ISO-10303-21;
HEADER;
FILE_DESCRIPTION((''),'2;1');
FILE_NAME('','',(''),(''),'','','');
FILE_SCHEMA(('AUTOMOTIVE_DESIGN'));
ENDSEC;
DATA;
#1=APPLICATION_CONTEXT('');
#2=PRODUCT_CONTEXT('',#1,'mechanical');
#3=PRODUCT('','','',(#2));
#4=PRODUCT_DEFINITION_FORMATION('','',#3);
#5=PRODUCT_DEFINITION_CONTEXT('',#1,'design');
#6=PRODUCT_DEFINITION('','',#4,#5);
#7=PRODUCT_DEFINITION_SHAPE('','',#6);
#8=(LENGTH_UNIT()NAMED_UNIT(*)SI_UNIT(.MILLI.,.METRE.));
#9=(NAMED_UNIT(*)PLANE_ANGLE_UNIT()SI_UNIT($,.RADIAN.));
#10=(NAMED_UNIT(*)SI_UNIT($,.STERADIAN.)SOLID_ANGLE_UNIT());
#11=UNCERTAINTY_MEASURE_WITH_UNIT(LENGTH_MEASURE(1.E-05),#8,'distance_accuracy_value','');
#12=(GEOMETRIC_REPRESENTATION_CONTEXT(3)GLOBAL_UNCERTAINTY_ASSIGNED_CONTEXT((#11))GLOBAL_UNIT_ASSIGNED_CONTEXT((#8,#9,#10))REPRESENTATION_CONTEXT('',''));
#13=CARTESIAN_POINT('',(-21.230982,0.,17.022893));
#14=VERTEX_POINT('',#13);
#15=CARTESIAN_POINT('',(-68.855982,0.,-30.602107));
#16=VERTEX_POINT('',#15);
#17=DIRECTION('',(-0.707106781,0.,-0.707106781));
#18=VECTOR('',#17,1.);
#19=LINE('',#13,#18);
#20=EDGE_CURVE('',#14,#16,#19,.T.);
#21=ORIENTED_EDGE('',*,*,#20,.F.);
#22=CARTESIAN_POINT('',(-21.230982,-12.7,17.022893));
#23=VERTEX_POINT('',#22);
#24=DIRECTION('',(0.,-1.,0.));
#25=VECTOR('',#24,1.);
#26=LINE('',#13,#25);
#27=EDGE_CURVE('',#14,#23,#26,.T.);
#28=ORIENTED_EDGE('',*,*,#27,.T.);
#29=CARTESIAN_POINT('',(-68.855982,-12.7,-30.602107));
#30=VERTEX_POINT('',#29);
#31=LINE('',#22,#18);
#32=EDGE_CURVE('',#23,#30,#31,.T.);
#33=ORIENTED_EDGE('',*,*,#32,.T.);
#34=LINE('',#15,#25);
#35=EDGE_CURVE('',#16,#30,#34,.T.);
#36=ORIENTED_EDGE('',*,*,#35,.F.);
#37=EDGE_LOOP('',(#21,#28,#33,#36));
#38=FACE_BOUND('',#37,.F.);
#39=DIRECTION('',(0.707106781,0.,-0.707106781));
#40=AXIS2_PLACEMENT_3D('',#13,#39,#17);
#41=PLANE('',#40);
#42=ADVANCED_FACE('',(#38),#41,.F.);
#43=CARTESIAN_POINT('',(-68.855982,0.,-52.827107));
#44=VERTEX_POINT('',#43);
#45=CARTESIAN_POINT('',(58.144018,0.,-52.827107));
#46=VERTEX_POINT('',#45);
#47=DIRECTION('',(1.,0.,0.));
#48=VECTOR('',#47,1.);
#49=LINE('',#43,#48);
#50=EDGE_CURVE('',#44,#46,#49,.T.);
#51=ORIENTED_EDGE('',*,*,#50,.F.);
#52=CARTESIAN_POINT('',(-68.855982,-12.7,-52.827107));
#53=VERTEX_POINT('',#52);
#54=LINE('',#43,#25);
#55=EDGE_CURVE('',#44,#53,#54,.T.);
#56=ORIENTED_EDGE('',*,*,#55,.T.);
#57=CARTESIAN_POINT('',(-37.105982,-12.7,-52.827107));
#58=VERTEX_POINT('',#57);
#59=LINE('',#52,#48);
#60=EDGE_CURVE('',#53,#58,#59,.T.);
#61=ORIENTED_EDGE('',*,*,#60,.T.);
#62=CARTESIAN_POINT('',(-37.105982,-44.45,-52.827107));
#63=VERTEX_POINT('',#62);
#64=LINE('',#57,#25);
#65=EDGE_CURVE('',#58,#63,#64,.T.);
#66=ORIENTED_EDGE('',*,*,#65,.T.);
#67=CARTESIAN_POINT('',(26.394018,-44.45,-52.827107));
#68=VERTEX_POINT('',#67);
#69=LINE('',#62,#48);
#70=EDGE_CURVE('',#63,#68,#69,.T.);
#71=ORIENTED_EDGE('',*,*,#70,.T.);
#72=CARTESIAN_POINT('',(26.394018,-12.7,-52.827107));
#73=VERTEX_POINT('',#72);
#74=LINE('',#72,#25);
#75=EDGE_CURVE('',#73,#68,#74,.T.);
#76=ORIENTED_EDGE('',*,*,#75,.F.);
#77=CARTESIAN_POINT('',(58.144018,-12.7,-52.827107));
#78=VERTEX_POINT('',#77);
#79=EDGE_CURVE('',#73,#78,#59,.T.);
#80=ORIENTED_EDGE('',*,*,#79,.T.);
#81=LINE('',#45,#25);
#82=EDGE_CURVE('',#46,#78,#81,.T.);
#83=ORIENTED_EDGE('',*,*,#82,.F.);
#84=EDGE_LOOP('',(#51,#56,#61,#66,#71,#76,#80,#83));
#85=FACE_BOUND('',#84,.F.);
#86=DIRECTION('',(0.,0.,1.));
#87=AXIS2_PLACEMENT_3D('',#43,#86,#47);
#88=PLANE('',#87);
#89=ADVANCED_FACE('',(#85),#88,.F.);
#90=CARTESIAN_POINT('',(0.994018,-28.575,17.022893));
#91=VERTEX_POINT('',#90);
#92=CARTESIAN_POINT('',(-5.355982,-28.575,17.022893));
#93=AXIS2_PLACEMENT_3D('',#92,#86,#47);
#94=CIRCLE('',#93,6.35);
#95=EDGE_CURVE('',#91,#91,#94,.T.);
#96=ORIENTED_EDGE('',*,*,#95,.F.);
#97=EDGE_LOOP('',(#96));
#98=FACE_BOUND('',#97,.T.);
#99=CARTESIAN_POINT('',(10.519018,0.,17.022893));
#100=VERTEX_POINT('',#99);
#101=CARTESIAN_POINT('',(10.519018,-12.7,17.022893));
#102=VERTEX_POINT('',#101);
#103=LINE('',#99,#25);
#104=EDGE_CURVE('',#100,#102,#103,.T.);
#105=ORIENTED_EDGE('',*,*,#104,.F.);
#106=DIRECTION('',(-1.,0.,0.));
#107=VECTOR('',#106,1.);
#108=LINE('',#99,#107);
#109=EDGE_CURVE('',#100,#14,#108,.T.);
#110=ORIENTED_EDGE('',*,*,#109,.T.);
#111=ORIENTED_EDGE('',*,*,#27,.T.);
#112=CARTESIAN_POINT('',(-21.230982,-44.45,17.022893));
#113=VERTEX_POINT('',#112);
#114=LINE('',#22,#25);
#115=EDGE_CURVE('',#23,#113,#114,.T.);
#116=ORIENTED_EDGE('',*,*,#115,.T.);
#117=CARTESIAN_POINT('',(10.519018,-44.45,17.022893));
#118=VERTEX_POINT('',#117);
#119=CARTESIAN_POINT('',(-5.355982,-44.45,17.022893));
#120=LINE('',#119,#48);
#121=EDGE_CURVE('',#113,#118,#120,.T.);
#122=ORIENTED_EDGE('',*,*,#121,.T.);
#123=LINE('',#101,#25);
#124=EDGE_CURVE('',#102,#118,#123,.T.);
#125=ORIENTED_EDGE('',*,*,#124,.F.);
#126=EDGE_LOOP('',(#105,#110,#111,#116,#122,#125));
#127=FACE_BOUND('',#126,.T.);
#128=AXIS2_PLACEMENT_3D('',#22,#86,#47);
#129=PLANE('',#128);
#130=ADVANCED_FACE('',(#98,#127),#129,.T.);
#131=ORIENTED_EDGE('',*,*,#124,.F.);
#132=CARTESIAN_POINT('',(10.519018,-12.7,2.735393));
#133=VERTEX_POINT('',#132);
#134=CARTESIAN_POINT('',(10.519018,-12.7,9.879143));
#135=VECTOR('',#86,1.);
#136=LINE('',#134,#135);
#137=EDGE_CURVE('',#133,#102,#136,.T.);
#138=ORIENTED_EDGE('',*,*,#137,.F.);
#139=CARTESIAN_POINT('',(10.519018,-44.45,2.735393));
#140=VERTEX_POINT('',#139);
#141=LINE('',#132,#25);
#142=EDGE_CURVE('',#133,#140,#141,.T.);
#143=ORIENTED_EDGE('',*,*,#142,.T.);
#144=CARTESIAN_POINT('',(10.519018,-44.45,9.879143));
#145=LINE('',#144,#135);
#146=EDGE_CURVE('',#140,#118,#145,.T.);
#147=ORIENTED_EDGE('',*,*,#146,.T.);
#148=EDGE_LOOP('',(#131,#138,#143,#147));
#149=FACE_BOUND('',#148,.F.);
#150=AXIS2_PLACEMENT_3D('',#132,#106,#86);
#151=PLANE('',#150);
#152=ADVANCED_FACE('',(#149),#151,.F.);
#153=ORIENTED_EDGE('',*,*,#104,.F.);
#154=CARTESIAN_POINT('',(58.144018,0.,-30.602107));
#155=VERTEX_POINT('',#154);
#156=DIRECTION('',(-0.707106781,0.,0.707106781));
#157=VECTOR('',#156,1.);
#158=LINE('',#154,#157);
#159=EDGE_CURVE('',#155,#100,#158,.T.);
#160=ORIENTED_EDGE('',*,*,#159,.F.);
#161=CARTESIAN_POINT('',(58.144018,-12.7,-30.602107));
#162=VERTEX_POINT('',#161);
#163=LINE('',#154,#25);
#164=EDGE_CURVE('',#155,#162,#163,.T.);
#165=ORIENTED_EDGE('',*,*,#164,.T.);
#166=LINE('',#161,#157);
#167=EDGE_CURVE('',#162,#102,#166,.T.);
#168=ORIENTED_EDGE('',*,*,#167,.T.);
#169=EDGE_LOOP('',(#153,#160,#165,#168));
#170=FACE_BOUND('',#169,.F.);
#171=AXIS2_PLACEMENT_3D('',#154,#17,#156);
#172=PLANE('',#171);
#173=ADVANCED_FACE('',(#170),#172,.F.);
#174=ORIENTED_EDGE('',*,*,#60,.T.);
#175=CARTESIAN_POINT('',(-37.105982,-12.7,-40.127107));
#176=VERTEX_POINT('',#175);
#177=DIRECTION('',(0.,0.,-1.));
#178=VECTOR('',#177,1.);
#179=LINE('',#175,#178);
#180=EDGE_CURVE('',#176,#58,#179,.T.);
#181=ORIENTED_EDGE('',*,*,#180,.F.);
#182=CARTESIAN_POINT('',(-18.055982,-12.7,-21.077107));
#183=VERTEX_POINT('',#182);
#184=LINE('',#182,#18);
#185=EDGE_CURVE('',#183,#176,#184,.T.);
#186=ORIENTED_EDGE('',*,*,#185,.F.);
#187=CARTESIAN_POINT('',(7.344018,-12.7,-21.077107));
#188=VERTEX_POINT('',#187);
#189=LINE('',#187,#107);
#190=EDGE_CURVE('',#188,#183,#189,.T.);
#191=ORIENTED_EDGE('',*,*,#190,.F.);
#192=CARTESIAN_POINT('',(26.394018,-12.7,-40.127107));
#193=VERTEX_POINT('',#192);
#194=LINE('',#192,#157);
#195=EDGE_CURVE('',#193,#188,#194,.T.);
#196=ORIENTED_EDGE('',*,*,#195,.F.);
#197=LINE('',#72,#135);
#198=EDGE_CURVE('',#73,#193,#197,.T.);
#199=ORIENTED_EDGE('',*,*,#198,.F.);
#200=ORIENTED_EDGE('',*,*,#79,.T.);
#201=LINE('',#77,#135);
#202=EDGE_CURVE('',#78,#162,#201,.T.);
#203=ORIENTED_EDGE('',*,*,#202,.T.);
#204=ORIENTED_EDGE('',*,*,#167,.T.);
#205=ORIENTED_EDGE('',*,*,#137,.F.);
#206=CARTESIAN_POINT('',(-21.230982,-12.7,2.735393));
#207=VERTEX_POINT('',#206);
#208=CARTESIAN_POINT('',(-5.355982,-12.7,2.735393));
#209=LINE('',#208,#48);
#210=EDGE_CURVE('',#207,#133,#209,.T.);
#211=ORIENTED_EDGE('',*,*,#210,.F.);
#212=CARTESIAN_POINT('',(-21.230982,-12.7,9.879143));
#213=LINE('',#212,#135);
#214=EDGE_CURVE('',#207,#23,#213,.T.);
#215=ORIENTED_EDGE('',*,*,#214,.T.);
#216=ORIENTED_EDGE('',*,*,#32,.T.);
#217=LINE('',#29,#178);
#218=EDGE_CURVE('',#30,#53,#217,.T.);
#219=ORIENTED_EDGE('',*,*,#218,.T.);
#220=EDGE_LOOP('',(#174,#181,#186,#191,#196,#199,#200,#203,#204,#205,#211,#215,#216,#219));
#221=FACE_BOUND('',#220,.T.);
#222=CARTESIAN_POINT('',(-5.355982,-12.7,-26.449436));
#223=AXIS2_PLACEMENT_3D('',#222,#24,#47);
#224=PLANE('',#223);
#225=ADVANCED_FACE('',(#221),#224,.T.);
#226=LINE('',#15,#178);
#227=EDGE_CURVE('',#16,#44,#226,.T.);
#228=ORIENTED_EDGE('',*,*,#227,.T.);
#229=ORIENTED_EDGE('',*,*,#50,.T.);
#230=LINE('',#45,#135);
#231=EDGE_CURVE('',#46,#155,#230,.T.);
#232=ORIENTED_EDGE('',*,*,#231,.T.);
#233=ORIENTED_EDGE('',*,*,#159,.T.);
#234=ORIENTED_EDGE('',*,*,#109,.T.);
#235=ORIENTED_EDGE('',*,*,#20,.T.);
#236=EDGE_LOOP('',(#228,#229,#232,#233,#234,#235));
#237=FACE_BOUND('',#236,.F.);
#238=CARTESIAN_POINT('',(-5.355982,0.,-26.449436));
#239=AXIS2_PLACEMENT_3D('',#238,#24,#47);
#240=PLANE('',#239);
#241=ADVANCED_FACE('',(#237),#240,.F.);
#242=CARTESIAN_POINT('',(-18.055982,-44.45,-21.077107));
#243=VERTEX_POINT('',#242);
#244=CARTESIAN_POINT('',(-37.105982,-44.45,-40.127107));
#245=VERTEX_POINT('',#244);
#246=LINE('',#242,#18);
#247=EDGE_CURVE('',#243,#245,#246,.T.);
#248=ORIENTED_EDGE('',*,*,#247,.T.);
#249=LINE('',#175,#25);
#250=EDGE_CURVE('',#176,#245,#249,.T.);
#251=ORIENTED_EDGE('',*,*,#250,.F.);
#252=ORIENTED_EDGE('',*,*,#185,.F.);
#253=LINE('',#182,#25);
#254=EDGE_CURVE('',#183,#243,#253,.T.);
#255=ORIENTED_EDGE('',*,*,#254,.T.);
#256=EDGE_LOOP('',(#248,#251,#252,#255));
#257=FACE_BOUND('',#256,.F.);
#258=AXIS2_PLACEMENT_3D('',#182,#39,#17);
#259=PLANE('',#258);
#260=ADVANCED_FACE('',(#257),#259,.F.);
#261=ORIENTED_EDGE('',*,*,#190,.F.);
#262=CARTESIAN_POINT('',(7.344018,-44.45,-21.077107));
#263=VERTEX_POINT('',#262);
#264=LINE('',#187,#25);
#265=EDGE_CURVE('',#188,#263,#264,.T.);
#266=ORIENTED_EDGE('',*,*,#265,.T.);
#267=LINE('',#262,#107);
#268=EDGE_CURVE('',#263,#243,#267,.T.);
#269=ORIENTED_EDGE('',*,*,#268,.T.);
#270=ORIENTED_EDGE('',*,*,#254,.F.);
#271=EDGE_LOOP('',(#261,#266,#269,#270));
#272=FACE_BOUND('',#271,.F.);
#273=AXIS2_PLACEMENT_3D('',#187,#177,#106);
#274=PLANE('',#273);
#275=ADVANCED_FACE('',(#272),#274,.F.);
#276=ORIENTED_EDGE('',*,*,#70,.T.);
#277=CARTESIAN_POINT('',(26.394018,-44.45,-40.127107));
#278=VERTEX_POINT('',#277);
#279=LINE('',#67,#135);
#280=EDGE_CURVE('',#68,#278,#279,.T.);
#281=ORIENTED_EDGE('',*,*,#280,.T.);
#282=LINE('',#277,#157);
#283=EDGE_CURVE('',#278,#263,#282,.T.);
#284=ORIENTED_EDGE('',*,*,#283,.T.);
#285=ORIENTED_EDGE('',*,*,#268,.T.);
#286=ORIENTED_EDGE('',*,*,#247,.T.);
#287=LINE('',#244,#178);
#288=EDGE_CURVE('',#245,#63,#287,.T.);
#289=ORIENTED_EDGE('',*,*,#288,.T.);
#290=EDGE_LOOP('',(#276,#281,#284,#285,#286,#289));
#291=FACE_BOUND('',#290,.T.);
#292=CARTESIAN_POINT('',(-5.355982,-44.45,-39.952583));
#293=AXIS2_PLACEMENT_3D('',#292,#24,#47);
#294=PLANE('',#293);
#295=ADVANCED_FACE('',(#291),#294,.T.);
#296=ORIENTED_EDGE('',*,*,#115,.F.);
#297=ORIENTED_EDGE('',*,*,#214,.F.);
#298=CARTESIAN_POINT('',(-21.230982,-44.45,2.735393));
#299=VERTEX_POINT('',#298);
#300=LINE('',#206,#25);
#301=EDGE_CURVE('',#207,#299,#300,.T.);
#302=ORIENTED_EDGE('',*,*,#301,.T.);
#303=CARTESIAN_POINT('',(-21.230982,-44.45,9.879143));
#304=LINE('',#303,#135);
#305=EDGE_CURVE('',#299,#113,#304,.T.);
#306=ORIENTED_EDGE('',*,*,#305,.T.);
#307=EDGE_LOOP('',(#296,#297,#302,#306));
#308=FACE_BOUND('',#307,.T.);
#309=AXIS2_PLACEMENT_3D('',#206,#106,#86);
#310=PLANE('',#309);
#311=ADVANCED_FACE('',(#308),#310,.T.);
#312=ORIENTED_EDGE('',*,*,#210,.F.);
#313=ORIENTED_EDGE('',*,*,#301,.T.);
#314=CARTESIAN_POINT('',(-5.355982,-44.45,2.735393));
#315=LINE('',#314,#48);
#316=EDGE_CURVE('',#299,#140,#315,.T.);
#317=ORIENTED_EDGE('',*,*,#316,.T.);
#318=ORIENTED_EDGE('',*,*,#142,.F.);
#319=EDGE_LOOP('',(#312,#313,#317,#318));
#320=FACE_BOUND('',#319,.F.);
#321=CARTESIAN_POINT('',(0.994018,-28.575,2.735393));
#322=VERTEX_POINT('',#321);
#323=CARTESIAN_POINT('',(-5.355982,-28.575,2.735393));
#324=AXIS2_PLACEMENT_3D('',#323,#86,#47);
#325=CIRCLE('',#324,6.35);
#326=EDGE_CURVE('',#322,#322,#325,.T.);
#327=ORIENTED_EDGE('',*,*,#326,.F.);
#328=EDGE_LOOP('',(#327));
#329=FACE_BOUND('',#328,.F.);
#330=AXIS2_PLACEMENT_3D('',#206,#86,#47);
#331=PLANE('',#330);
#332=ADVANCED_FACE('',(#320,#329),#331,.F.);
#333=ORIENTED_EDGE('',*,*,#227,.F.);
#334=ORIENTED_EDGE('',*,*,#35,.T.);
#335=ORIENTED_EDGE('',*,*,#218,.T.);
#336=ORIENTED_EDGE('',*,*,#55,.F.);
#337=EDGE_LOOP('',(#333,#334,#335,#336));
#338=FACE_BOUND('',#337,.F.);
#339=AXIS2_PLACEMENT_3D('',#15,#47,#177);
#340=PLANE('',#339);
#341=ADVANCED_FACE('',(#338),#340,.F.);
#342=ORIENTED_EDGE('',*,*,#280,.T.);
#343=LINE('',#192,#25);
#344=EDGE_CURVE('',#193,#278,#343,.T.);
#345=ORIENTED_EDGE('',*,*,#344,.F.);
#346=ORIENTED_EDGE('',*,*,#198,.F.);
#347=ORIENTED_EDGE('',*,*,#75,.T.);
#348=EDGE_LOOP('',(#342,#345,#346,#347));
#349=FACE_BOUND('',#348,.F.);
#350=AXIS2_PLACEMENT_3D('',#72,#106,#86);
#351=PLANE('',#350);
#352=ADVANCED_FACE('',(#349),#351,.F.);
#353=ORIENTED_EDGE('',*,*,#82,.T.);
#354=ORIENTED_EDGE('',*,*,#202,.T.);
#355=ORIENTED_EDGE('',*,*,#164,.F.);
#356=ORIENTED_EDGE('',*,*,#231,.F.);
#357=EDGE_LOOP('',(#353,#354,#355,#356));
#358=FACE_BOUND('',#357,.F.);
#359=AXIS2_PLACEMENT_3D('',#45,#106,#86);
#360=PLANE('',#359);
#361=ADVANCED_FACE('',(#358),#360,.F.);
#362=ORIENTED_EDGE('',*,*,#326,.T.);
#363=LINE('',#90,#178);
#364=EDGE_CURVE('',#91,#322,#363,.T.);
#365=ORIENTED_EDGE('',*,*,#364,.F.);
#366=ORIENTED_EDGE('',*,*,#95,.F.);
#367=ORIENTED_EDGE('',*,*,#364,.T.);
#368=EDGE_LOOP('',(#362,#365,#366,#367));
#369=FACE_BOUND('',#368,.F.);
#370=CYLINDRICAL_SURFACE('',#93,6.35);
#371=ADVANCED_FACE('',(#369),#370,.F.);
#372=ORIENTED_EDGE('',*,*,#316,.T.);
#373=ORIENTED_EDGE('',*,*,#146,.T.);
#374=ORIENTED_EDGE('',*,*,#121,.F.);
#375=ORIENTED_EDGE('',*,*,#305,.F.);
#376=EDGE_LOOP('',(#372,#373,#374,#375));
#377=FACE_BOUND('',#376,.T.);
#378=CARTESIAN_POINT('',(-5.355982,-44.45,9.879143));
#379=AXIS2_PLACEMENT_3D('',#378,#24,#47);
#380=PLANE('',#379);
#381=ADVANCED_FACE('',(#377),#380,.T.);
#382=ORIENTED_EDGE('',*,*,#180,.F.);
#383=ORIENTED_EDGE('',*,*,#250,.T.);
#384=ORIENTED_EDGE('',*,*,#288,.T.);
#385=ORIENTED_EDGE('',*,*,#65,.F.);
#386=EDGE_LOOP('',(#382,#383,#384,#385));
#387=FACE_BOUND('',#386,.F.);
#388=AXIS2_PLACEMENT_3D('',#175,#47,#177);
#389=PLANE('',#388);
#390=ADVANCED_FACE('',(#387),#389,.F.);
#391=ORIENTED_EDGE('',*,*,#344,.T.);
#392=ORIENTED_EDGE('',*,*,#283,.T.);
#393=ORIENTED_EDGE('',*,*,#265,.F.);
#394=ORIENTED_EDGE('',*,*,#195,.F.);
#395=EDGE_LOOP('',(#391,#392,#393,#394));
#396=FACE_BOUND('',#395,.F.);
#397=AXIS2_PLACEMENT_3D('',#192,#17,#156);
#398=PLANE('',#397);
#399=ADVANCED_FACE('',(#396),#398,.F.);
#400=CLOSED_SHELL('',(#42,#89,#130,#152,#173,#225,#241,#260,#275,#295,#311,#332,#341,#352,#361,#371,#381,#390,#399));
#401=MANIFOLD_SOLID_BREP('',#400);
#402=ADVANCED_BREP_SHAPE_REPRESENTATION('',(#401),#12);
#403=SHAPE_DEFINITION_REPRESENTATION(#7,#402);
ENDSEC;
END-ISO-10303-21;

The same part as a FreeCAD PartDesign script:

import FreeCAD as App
import Part
import Sketcher
Q = App.Units.Quantity


def add_polygon(sketch, points):
    """Adds a closed chain of lines whose ends are joined by coincident constraints."""
    first, n = sketch.GeometryCount, len(points)
    for a, b in zip(points, points[1:] + points[:1]):
        sketch.addGeometry(Part.LineSegment(App.Vector(*a, 0), App.Vector(*b, 0)), False)
    for i in range(n):
        sketch.addConstraint(Sketcher.Constraint("Coincident", first + i, 2, first + (i + 1) % n, 1))

doc = App.newDocument("Part")
body = doc.addObject("PartDesign::Body", "Body")

sketch1 = body.newObject("Sketcher::SketchObject", "Sketch")
sketch1.AttachmentSupport = (doc.getObject("XZ_Plane"), [""])
sketch1.MapMode = "FlatFace"
add_polygon(sketch1, [(10.519018, 17.022893), (-21.230982, 17.022893), (-68.855982, -30.602107), (-68.855982, -52.827107), (58.144018, -52.827107), (58.144018, -30.602107)])
sketch1.addConstraint([
    Sketcher.Constraint("Horizontal", 0),
    Sketcher.Constraint("Vertical", 2),
    Sketcher.Constraint("Horizontal", 3),
    Sketcher.Constraint("Vertical", 4),
    Sketcher.Constraint("Perpendicular", 1, 5),
    Sketcher.Constraint("Horizontal", 1, 2, 4, 2),
    Sketcher.Constraint("Equal", 1, 5),
    Sketcher.Constraint("DistanceX", 3, 1, 3, 2, Q("5 in")),
    Sketcher.Constraint("DistanceX", 0, 2, 0, 1, Q("1.25 in")),
    Sketcher.Constraint("DistanceY", 2, 2, 2, 1, Q("0.875 in")),
    Sketcher.Constraint("DistanceX", 1, 2, -1, 1, 68.855982),
    Sketcher.Constraint("DistanceY", -1, 1, 0, 2, 17.022893),
])
pad1 = body.newObject("PartDesign::Pad", "Pad")
pad1.Profile = sketch1
pad1.Length = Q("0.5 in")

sketch2 = body.newObject("Sketcher::SketchObject", "Sketch001")
sketch2.AttachmentSupport = (doc.getObject("XZ_Plane"), [""])
sketch2.MapMode = "FlatFace"
sketch2.AttachmentOffset = App.Placement(App.Vector(0, 0, 0.5 * 25.4), App.Rotation())
add_polygon(sketch2, [(7.344018, -21.077107), (-18.055982, -21.077107), (-37.105982, -40.127107), (-37.105982, -52.827107), (26.394018, -52.827107), (26.394018, -40.127107)])
sketch2.addConstraint([
    Sketcher.Constraint("Horizontal", 0),
    Sketcher.Constraint("Vertical", 2),
    Sketcher.Constraint("Horizontal", 3),
    Sketcher.Constraint("Vertical", 4),
    Sketcher.Constraint("Perpendicular", 1, 5),
    Sketcher.Constraint("Horizontal", 1, 2, 4, 2),
    Sketcher.Constraint("Equal", 1, 5),
    Sketcher.Constraint("DistanceX", 0, 2, 0, 1, Q("1 in")),
    Sketcher.Constraint("DistanceX", 3, 1, 3, 2, Q("2.5 in")),
    Sketcher.Constraint("DistanceY", 2, 2, 2, 1, Q("0.5 in")),
    Sketcher.Constraint("DistanceX", 0, 2, -1, 1, 18.055982),
    Sketcher.Constraint("DistanceY", 0, 2, -1, 1, 21.077107),
])
pad2 = body.newObject("PartDesign::Pad", "Pad001")
pad2.Profile = sketch2
pad2.Length = Q("1.25 in")

sketch3 = body.newObject("Sketcher::SketchObject", "Sketch002")
sketch3.AttachmentSupport = (doc.getObject("XZ_Plane"), [""])
sketch3.MapMode = "FlatFace"
sketch3.AttachmentOffset = App.Placement(App.Vector(0, 0, 0.5 * 25.4), App.Rotation())
add_polygon(sketch3, [(-21.230982, 17.022893), (-21.230982, 2.735393), (10.519018, 2.735393), (10.519018, 17.022893)])
sketch3.addConstraint([
    Sketcher.Constraint("Vertical", 0),
    Sketcher.Constraint("Horizontal", 1),
    Sketcher.Constraint("Vertical", 2),
    Sketcher.Constraint("Horizontal", 3),
    Sketcher.Constraint("DistanceX", 1, 1, 1, 2, Q("1.25 in")),
    Sketcher.Constraint("DistanceY", 0, 2, 0, 1, Q("0.5625 in")),
    Sketcher.Constraint("DistanceX", -1, 1, 1, 2, 10.519018),
    Sketcher.Constraint("DistanceY", -1, 1, 0, 2, 2.735393),
])
pad3 = body.newObject("PartDesign::Pad", "Pad002")
pad3.Profile = sketch3
pad3.Length = Q("1.25 in")

sketch4 = body.newObject("Sketcher::SketchObject", "Sketch003")
sketch4.AttachmentSupport = (doc.getObject("XY_Plane"), [""])
sketch4.MapMode = "FlatFace"
sketch4.AttachmentOffset = App.Placement(App.Vector(0, 0, 17.022893), App.Rotation())
sketch4.addGeometry(Part.Circle(App.Vector(-5.355982, -28.575, 0), App.Vector(0, 0, 1), 6.35), False)
sketch4.addConstraint([
    Sketcher.Constraint("Diameter", 0, Q("0.5 in")),
    Sketcher.Constraint("DistanceY", 0, 3, -1, 1, Q("1.125 in")),
    Sketcher.Constraint("DistanceX", 0, 3, -1, 1, 5.355982),
])
pocket1 = body.newObject("PartDesign::Pocket", "Pocket")
pocket1.Profile = sketch4
pocket1.Length = Q("0.5625 in")

doc.recompute()
